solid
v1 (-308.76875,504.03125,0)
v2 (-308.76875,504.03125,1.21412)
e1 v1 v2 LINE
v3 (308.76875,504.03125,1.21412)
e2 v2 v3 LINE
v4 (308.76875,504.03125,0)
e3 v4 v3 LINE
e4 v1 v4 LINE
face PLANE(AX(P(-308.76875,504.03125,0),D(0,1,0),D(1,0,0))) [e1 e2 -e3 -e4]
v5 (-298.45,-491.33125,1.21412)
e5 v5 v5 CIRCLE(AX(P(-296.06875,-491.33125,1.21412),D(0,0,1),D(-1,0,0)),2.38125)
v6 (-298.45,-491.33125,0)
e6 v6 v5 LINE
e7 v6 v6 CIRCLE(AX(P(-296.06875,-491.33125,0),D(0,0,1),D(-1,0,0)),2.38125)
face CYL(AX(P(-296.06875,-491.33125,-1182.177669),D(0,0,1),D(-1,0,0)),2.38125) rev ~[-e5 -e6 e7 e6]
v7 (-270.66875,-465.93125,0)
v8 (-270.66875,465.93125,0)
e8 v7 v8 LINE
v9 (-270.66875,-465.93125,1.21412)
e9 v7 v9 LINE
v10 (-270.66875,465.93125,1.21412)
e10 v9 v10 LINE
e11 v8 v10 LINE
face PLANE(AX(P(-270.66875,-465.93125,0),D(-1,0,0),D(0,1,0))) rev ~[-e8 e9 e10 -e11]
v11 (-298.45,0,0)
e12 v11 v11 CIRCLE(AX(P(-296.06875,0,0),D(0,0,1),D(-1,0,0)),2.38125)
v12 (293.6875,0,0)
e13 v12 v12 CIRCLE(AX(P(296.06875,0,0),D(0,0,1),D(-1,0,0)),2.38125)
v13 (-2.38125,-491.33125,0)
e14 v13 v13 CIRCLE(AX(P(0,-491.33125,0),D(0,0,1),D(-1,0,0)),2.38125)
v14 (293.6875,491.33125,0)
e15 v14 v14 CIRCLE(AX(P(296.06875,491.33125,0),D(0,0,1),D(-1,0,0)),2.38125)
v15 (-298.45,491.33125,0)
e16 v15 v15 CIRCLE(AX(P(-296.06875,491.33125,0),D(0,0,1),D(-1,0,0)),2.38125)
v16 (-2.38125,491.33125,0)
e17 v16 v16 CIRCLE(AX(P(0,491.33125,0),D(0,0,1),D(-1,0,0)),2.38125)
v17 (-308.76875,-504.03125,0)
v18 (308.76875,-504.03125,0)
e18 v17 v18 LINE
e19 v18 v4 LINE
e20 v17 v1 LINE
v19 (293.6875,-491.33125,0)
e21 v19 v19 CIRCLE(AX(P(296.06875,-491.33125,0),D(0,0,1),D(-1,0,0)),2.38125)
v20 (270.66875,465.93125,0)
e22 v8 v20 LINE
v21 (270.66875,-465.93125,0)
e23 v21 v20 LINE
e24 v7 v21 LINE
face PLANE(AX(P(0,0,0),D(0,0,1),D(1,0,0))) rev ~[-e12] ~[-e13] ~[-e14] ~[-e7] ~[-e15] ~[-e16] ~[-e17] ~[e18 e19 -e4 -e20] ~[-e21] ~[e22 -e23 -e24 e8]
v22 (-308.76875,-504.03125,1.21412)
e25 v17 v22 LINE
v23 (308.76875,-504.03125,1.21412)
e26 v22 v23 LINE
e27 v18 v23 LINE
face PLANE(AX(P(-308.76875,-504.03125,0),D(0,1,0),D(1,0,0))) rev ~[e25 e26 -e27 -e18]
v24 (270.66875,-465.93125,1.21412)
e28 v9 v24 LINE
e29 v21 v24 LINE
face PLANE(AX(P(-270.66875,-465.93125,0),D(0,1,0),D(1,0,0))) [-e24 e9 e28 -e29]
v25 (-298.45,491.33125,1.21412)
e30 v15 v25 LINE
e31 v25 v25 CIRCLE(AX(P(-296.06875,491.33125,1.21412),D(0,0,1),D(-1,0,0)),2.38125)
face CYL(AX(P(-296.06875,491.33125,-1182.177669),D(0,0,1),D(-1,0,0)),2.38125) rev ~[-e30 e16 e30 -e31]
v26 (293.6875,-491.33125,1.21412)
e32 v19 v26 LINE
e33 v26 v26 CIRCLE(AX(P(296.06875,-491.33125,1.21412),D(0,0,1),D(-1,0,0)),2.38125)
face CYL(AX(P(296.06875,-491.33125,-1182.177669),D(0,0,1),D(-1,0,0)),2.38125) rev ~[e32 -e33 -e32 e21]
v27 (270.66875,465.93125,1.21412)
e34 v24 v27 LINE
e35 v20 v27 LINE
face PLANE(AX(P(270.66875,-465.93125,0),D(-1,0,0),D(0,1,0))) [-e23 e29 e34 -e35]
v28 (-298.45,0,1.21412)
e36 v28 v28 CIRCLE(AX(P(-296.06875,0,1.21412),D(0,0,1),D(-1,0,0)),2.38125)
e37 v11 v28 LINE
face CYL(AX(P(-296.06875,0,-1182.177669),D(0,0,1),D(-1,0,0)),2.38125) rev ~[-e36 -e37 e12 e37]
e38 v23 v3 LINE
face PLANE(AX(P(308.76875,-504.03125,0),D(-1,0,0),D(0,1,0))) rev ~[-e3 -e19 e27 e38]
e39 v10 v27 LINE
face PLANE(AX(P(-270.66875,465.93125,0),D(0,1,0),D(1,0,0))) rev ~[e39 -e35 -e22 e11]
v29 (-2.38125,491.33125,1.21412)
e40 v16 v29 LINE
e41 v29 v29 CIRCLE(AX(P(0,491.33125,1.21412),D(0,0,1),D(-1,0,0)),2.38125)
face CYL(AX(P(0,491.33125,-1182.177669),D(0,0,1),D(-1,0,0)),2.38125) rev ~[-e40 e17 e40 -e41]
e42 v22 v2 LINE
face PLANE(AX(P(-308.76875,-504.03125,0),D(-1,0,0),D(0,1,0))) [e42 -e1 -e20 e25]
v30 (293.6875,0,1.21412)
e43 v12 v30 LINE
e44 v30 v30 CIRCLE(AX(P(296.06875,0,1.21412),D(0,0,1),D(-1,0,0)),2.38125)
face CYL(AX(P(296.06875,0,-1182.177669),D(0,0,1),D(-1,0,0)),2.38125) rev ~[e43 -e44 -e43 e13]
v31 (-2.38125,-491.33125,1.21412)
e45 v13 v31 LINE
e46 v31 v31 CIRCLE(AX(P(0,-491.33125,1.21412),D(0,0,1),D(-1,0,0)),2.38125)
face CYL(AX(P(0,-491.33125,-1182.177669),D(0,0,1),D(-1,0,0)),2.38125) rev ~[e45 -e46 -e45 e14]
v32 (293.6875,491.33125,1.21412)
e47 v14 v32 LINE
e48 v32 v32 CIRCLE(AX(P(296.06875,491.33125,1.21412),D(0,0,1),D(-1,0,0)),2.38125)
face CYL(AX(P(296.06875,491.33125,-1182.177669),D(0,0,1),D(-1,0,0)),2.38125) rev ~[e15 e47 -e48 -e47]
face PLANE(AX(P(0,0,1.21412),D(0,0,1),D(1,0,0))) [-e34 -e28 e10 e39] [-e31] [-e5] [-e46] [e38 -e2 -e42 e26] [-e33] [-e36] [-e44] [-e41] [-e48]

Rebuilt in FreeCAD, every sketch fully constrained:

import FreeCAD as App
import Part
import Sketcher
Q = App.Units.Quantity

doc = App.newDocument("Part")
params = doc.addObject("Spreadsheet::Sheet", "Params")
for row, (alias, value) in enumerate([
    ("sketch1_width", "24.3125 in"),
    ("sketch1_height", "39.6875 in"),
    ("pad1_length", "0.0478 in"),
    ("sketch2_diameter", "0.1875 in"),
    ("hole_diameter", "0.1875 in"),
], start=1):
    params.set(f"A{row}", alias)
    params.set(f"B{row}", "=" + value)
    params.setAlias(f"B{row}", alias)

body = doc.addObject("PartDesign::Body", "Body")

sketch1 = body.newObject("Sketcher::SketchObject", "Sketch")
sketch1.AttachmentSupport = (doc.getObject("XY_Plane"), [""])
sketch1.MapMode = "FlatFace"
sketch1.addGeometry(Part.LineSegment(App.Vector(-309, 504, 0), App.Vector(-309, -504, 0)), False)
sketch1.addGeometry(Part.LineSegment(App.Vector(-309, -504, 0), App.Vector(309, -504, 0)), False)
sketch1.addGeometry(Part.LineSegment(App.Vector(309, -504, 0), App.Vector(309, 504, 0)), False)
sketch1.addGeometry(Part.LineSegment(App.Vector(309, 504, 0), App.Vector(-309, 504, 0)), False)
sketch1.addGeometry(Part.LineSegment(App.Vector(271, -466, 0), App.Vector(-271, -466, 0)), False)
sketch1.addGeometry(Part.LineSegment(App.Vector(-271, -466, 0), App.Vector(-271, 466, 0)), False)
sketch1.addGeometry(Part.LineSegment(App.Vector(-271, 466, 0), App.Vector(271, 466, 0)), False)
sketch1.addGeometry(Part.LineSegment(App.Vector(271, 466, 0), App.Vector(271, -466, 0)), False)
sketch1.addConstraint(Sketcher.Constraint("Coincident", 0, 2, 1, 1))
sketch1.addConstraint(Sketcher.Constraint("Coincident", 1, 2, 2, 1))
sketch1.addConstraint(Sketcher.Constraint("Coincident", 2, 2, 3, 1))
sketch1.addConstraint(Sketcher.Constraint("Coincident", 3, 2, 0, 1))
sketch1.addConstraint(Sketcher.Constraint("Coincident", 4, 2, 5, 1))
sketch1.addConstraint(Sketcher.Constraint("Coincident", 5, 2, 6, 1))
sketch1.addConstraint(Sketcher.Constraint("Coincident", 6, 2, 7, 1))
sketch1.addConstraint(Sketcher.Constraint("Coincident", 7, 2, 4, 1))
sketch1.addConstraint(Sketcher.Constraint("Vertical", 0))
sketch1.addConstraint(Sketcher.Constraint("Horizontal", 1))
sketch1.addConstraint(Sketcher.Constraint("Vertical", 2))
sketch1.addConstraint(Sketcher.Constraint("Horizontal", 3))
sketch1.addConstraint(Sketcher.Constraint("Horizontal", 4))
sketch1.addConstraint(Sketcher.Constraint("Vertical", 5))
sketch1.addConstraint(Sketcher.Constraint("Horizontal", 6))
sketch1.addConstraint(Sketcher.Constraint("Vertical", 7))
sketch1.addConstraint(Sketcher.Constraint("Symmetric", 0, 2, 2, 2, -1, 1))
sketch1.addConstraint(Sketcher.Constraint("Symmetric", 4, 2, 6, 2, -1, 1))
sketch1.addConstraint(Sketcher.Constraint("DistanceX", 0, 2, 4, 2, Q("1.5 in")))
sketch1.addConstraint(Sketcher.Constraint("DistanceY", 0, 2, 4, 2, Q("1.5 in")))
sketch1.addConstraint(Sketcher.Constraint("DistanceX", 1, 1, 1, 2, Q("24.3125 in")))
sketch1.addConstraint(Sketcher.Constraint("DistanceY", 0, 2, 0, 1, Q("39.6875 in")))
sketch1.setExpression("Constraints[20]", "Params.sketch1_width")
sketch1.setExpression("Constraints[21]", "Params.sketch1_height")
pad1 = body.newObject("PartDesign::Pad", "Pad")
pad1.Profile = sketch1
pad1.setExpression("Length", "Params.pad1_length")

sketch2 = body.newObject("Sketcher::SketchObject", "Sketch001")
sketch2.AttachmentSupport = (doc.getObject("XY_Plane"), [""])
sketch2.MapMode = "FlatFace"
sketch2.addGeometry(Part.Circle(App.Vector(-296.1, -491.3, 0), App.Vector(0, 0, 1), 2.4), False)
sketch2.addGeometry(Part.Circle(App.Vector(0, -491.3, 0), App.Vector(0, 0, 1), 2.4), False)
sketch2.addGeometry(Part.Circle(App.Vector(296.1, -491.3, 0), App.Vector(0, 0, 1), 2.4), False)
sketch2.addGeometry(Part.Circle(App.Vector(296.1, 0, 0), App.Vector(0, 0, 1), 2.4), False)
sketch2.addGeometry(Part.Circle(App.Vector(296.1, 491.3, 0), App.Vector(0, 0, 1), 2.4), False)
sketch2.addGeometry(Part.Circle(App.Vector(0, 491.3, 0), App.Vector(0, 0, 1), 2.4), False)
sketch2.addGeometry(Part.Circle(App.Vector(-296.1, 491.3, 0), App.Vector(0, 0, 1), 2.4), False)
sketch2.addGeometry(Part.Circle(App.Vector(-296.1, 0, 0), App.Vector(0, 0, 1), 2.4), False)
sketch2.addConstraint(Sketcher.Constraint("Equal", 0, 1))
sketch2.addConstraint(Sketcher.Constraint("Equal", 1, 2))
sketch2.addConstraint(Sketcher.Constraint("Equal", 2, 3))
sketch2.addConstraint(Sketcher.Constraint("Equal", 3, 4))
sketch2.addConstraint(Sketcher.Constraint("Equal", 4, 5))
sketch2.addConstraint(Sketcher.Constraint("Equal", 5, 6))
sketch2.addConstraint(Sketcher.Constraint("Equal", 6, 7))
sketch2.addConstraint(Sketcher.Constraint("Symmetric", 0, 3, 4, 3, -1, 1))
sketch2.addConstraint(Sketcher.Constraint("Symmetric", 1, 3, 5, 3, -1, 1))
sketch2.addConstraint(Sketcher.Constraint("Symmetric", 2, 3, 6, 3, -1, 1))
sketch2.addConstraint(Sketcher.Constraint("Symmetric", 3, 3, 7, 3, -1, 1))
sketch2.addConstraint(Sketcher.Constraint("Symmetric", 0, 3, 2, 3, -2))
sketch2.addConstraint(Sketcher.Constraint("PointOnObject", 1, 3, -2))
sketch2.addConstraint(Sketcher.Constraint("PointOnObject", 3, 3, -1))
sketch2.addConstraint(Sketcher.Constraint("Horizontal", 0, 3, 1, 3))
sketch2.addConstraint(Sketcher.Constraint("Vertical", 2, 3, 3, 3))
sketch2.addConstraint(Sketcher.Constraint("Diameter", 0, Q("0.1875 in")))
sketch2.addConstraint(Sketcher.Constraint("DistanceX", 0, 3, -1, 1, Q("11.65625 in")))
sketch2.addConstraint(Sketcher.Constraint("DistanceY", 0, 3, -1, 1, Q("19.34375 in")))
sketch2.setExpression("Constraints[16]", "Params.sketch2_diameter")
doc.recompute()
hole = body.newObject("PartDesign::Hole", "Hole")
hole.Profile = sketch2
hole.ThreadType = "None"
hole.setExpression("Diameter", "Params.hole_diameter")
hole.DepthType = "ThroughAll"
hole.Reversed = True

doc.recompute()
